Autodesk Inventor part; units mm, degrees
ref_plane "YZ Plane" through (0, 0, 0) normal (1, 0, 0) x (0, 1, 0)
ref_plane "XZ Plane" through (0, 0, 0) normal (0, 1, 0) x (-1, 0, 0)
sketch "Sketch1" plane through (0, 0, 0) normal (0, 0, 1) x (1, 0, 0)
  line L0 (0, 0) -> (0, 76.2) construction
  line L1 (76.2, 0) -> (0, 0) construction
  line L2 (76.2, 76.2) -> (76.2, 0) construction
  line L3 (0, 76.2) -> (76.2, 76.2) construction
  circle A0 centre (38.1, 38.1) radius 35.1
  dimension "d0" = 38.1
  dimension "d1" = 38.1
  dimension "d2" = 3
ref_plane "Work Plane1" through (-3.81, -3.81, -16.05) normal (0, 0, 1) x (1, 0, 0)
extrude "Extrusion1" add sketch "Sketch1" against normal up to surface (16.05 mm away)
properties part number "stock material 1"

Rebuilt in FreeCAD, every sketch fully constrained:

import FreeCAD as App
import Part
import Sketcher
from FreeCAD import Vector
Q = App.Units.Quantity

doc = App.newDocument("Part")
body = doc.addObject("PartDesign::Body", "Body")

sketch1 = doc.addObject("Sketcher::SketchObject", "Sketch")
body.addObject(sketch1)
sketch1.AttachmentSupport = (doc.XY_Plane, [""])
sketch1.MapMode = "FlatFace"
sketch1.addGeometry(Part.Circle(Vector(38, 38, 0), Vector(0, 0, 1), 35), False)
sketch1.addConstraint(Sketcher.Constraint("Diameter", 0, Q("70.2 mm")))
sketch1.addConstraint(Sketcher.Constraint("DistanceX", -1, 1, 0, 3, Q("38.1 mm")))
sketch1.addConstraint(Sketcher.Constraint("DistanceY", -1, 1, 0, 3, Q("38.1 mm")))
pad1 = doc.addObject("PartDesign::Pad", "Pad")
body.addObject(pad1)
pad1.Profile = sketch1
pad1.Length = 16.05
pad1.Reversed = True

doc.recompute()
